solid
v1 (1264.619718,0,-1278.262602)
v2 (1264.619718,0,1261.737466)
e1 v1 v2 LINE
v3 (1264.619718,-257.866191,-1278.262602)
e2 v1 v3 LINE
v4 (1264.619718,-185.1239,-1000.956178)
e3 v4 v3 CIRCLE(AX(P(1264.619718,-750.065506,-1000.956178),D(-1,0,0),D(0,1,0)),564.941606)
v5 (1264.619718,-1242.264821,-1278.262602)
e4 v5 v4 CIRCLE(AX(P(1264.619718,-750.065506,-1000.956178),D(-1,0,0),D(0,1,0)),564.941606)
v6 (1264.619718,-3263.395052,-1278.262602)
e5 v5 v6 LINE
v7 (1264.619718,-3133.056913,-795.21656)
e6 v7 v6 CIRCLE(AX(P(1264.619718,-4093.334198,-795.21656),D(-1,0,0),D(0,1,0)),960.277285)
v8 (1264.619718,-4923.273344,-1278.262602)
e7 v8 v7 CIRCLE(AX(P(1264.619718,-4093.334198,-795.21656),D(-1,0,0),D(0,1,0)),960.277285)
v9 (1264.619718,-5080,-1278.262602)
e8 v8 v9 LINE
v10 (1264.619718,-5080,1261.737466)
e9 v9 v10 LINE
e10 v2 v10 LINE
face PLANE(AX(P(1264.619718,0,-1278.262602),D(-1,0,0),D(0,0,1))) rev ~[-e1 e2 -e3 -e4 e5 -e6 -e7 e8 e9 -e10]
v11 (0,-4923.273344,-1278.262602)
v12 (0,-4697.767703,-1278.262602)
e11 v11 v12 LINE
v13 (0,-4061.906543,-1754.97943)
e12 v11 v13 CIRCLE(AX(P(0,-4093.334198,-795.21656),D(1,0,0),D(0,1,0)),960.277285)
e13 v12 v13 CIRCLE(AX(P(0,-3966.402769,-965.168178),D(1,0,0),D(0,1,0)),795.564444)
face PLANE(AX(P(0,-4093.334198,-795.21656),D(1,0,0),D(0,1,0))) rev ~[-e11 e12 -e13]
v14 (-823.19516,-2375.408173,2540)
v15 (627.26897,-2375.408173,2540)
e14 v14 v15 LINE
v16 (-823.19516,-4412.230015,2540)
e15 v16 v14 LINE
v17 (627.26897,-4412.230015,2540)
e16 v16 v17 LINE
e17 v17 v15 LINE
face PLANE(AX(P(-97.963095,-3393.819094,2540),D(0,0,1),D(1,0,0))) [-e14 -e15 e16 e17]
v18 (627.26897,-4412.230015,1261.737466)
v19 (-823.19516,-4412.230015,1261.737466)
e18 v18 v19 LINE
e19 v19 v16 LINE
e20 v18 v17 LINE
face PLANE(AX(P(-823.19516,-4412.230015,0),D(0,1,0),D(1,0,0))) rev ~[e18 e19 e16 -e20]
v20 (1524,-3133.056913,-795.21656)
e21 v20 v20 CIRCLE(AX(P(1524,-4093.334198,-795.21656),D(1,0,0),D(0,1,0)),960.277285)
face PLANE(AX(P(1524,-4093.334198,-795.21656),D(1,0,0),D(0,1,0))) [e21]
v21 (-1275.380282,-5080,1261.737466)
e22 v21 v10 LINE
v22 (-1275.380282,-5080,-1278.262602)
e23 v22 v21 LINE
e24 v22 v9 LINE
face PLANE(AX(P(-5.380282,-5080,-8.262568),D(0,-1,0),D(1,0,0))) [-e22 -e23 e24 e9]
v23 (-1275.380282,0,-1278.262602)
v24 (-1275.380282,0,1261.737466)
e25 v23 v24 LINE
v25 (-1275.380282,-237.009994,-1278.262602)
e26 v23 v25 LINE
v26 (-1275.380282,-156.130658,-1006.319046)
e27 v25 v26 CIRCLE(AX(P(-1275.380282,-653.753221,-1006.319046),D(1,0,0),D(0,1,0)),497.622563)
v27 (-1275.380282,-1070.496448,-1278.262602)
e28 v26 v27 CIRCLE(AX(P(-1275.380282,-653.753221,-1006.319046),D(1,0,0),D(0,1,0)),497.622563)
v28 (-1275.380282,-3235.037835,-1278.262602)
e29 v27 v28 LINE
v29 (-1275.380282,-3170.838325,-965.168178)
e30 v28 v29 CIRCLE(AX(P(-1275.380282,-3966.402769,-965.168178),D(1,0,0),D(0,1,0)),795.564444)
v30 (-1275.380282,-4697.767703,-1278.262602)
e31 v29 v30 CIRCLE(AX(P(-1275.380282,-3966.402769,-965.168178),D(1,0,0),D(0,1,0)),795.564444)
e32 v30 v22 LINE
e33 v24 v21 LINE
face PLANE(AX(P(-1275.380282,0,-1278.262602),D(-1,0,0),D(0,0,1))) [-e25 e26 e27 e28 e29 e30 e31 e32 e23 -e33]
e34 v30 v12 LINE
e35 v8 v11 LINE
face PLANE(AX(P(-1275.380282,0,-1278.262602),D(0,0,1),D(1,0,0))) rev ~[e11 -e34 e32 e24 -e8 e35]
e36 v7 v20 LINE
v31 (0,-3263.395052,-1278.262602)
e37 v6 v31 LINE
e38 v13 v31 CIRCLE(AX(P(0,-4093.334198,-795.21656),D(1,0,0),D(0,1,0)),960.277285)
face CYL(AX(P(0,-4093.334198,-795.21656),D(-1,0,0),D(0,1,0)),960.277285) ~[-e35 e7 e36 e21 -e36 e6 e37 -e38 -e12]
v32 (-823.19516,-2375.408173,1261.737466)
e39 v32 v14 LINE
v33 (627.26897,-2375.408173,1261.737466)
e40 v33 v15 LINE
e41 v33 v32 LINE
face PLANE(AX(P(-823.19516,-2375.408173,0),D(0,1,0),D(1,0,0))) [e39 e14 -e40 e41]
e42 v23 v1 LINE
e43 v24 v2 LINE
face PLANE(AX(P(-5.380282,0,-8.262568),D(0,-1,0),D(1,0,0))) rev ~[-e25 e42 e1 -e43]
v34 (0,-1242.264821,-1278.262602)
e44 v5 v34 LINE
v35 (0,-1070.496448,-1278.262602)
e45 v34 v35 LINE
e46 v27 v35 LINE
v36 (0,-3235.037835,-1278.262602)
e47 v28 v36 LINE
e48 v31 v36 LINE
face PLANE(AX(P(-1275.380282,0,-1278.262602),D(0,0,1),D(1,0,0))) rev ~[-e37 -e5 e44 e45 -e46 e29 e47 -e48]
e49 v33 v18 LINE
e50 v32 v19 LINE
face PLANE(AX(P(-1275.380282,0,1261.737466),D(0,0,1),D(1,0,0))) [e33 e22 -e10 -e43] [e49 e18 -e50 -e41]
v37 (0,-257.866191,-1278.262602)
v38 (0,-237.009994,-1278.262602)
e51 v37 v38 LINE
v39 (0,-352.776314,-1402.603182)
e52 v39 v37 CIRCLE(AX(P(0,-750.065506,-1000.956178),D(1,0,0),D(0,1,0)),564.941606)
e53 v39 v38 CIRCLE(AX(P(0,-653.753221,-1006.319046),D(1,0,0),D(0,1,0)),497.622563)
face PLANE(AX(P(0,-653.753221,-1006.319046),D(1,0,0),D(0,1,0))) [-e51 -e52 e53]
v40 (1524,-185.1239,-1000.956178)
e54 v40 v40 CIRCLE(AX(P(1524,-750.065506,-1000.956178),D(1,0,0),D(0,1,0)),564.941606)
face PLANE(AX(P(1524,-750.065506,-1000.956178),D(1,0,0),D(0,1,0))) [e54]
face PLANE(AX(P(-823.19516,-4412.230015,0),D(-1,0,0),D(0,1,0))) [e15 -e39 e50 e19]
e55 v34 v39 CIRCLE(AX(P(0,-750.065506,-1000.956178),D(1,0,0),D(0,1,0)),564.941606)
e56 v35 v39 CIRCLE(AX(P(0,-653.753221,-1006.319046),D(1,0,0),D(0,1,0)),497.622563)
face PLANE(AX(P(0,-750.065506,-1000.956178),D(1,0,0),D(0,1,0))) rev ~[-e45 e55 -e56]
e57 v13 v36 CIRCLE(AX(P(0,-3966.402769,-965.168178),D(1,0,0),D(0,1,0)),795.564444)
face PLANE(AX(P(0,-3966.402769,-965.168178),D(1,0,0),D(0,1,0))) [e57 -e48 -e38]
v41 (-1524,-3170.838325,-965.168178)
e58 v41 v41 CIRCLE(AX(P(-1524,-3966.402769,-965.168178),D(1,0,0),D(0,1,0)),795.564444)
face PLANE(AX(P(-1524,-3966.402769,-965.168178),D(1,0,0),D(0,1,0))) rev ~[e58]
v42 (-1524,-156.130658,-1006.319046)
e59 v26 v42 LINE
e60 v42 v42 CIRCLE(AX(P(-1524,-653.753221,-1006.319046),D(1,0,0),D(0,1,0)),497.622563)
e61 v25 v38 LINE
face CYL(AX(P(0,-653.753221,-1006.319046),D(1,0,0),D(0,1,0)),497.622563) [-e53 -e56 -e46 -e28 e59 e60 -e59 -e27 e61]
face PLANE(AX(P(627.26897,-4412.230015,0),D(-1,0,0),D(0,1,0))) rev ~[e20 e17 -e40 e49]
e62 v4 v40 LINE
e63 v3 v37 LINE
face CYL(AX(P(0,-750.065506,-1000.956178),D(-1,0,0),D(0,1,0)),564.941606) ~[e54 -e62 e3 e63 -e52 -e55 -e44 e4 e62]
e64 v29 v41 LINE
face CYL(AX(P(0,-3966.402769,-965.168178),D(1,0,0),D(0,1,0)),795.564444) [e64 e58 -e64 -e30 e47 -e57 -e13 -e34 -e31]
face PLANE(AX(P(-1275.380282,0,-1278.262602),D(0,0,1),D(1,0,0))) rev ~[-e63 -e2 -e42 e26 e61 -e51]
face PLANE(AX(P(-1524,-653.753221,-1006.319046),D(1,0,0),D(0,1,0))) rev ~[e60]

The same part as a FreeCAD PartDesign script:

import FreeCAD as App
import Part
import Sketcher
Q = App.Units.Quantity


def add_polygon(sketch, points):
    """Adds a closed chain of lines whose ends are joined by coincident constraints."""
    first, n = sketch.GeometryCount, len(points)
    for a, b in zip(points, points[1:] + points[:1]):
        sketch.addGeometry(Part.LineSegment(App.Vector(*a, 0), App.Vector(*b, 0)), False)
    for i in range(n):
        sketch.addConstraint(Sketcher.Constraint("Coincident", first + i, 2, first + (i + 1) % n, 1))

doc = App.newDocument("Part")
params = doc.addObject("Spreadsheet::Sheet", "Params")
for row, (alias, value) in enumerate([
    ("sketch1_width", "100 in"),
    ("pad1_length", "200 in"),
    ("pad2_length", "100 in"),
    ("pad3_length", "60 in"),
    ("pad4_length", "60 in"),
], start=1):
    params.set(f"A{row}", alias)
    params.set(f"B{row}", "=" + value)
    params.setAlias(f"B{row}", alias)

body = doc.addObject("PartDesign::Body", "Body")

sketch1 = body.newObject("Sketcher::SketchObject", "Sketch")
sketch1.AttachmentSupport = (doc.getObject("XZ_Plane"), [""])
sketch1.MapMode = "FlatFace"
add_polygon(sketch1, [(-1275, 1262), (-1275, -1278), (1265, -1278), (1265, 1262)])
sketch1.addConstraint(Sketcher.Constraint("Vertical", 0))
sketch1.addConstraint(Sketcher.Constraint("Horizontal", 1))
sketch1.addConstraint(Sketcher.Constraint("Vertical", 2))
sketch1.addConstraint(Sketcher.Constraint("Horizontal", 3))
sketch1.addConstraint(Sketcher.Constraint("DistanceX", 1, 1, 1, 2, Q("100 in")))
sketch1.addConstraint(Sketcher.Constraint("DistanceY", 0, 2, 0, 1, 2540.000068))
sketch1.addConstraint(Sketcher.Constraint("DistanceY", 0, 2, -1, 1, 1278.262602))
sketch1.addConstraint(Sketcher.Constraint("DistanceX", 0, 2, -1, 1, 1275.380282))
sketch1.setExpression("Constraints[8]", "Params.sketch1_width")
pad1 = body.newObject("PartDesign::Pad", "Pad")
pad1.Profile = sketch1
pad1.setExpression("Length", "Params.pad1_length")

sketch2 = body.newObject("Sketcher::SketchObject", "Sketch001")
sketch2.AttachmentSupport = (doc.getObject("XY_Plane"), [""])
sketch2.MapMode = "FlatFace"
add_polygon(sketch2, [(-823, -2375), (-823, -4412), (627, -4412), (627, -2375)])
sketch2.addConstraint(Sketcher.Constraint("Vertical", 0))
sketch2.addConstraint(Sketcher.Constraint("Horizontal", 1))
sketch2.addConstraint(Sketcher.Constraint("Vertical", 2))
sketch2.addConstraint(Sketcher.Constraint("Horizontal", 3))
sketch2.addConstraint(Sketcher.Constraint("DistanceX", 1, 1, 1, 2, 1450.464129))
sketch2.addConstraint(Sketcher.Constraint("DistanceY", 0, 2, 0, 1, 2036.821842))
sketch2.addConstraint(Sketcher.Constraint("DistanceX", 0, 2, -1, 1, 823.19516))
sketch2.addConstraint(Sketcher.Constraint("DistanceY", 0, 2, -1, 1, 4412.230015))
pad2 = body.newObject("PartDesign::Pad", "Pad001")
pad2.Profile = sketch2
pad2.setExpression("Length", "Params.pad2_length")

sketch3 = body.newObject("Sketcher::SketchObject", "Sketch002")
sketch3.AttachmentSupport = (doc.getObject("YZ_Plane"), [""])
sketch3.MapMode = "FlatFace"
sketch3.addGeometry(Part.Circle(App.Vector(-750, -1001, 0), App.Vector(0, 0, 1), 565), False)
sketch3.addGeometry(Part.Circle(App.Vector(-4093, -795, 0), App.Vector(0, 0, 1), 960), False)
sketch3.addConstraint(Sketcher.Constraint("Diameter", 0, 1129.883212))
sketch3.addConstraint(Sketcher.Constraint("Diameter", 1, 1920.55457))
sketch3.addConstraint(Sketcher.Constraint("DistanceX", 1, 3, -1, 1, 4093.334198))
sketch3.addConstraint(Sketcher.Constraint("DistanceY", 0, 3, -1, 1, 1000.956178))
sketch3.addConstraint(Sketcher.Constraint("DistanceY", 1, 3, -1, 1, 795.21656))
sketch3.addConstraint(Sketcher.Constraint("DistanceX", 0, 3, -1, 1, 750.065506))
pad3 = body.newObject("PartDesign::Pad", "Pad002")
pad3.Profile = sketch3
pad3.setExpression("Length", "Params.pad3_length")

sketch4 = body.newObject("Sketcher::SketchObject", "Sketch003")
sketch4.AttachmentSupport = (doc.getObject("YZ_Plane"), [""])
sketch4.MapMode = "FlatFace"
sketch4.addGeometry(Part.Circle(App.Vector(-654, -1006, 0), App.Vector(0, 0, 1), 498), False)
sketch4.addGeometry(Part.Circle(App.Vector(-3966, -965, 0), App.Vector(0, 0, 1), 796), False)
sketch4.addConstraint(Sketcher.Constraint("Diameter", 1, 1591.128888))
sketch4.addConstraint(Sketcher.Constraint("Diameter", 0, 995.245126))
sketch4.addConstraint(Sketcher.Constraint("DistanceX", 0, 3, -1, 1, 653.753221))
sketch4.addConstraint(Sketcher.Constraint("DistanceX", 1, 3, -1, 1, 3966.402769))
sketch4.addConstraint(Sketcher.Constraint("DistanceY", 1, 3, -1, 1, 965.168178))
sketch4.addConstraint(Sketcher.Constraint("DistanceY", 0, 3, -1, 1, 1006.319046))
pad4 = body.newObject("PartDesign::Pad", "Pad003")
pad4.Profile = sketch4
pad4.setExpression("Length", "Params.pad4_length")
pad4.Reversed = True

doc.recompute()
